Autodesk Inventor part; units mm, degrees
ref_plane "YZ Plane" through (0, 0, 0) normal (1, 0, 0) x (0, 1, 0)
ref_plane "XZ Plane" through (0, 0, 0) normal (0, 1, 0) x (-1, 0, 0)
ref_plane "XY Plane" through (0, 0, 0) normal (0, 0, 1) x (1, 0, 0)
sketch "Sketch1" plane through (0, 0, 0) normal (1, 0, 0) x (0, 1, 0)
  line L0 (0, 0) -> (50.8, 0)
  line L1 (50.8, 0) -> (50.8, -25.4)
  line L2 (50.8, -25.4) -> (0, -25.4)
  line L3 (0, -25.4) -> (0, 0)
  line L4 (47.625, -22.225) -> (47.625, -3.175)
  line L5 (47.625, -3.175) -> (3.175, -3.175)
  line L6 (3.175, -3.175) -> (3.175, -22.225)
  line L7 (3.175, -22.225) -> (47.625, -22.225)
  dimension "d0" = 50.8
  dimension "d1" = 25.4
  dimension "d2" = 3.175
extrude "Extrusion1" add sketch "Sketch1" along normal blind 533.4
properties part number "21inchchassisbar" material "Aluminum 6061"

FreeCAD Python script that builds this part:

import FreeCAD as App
import Part
import Sketcher
Q = App.Units.Quantity

doc = App.newDocument("Part")
params = doc.addObject("Spreadsheet::Sheet", "Params")
for row, (alias, value) in enumerate([
    ("sketch1_width", "2 in"),
    ("sketch1_height", "1 in"),
    ("pad1_length", "21 in"),
], start=1):
    params.set(f"A{row}", alias)
    params.set(f"B{row}", "=" + value)
    params.setAlias(f"B{row}", alias)

body = doc.addObject("PartDesign::Body", "Body")

sketch1 = body.newObject("Sketcher::SketchObject", "Sketch")
sketch1.AttachmentSupport = (doc.getObject("YZ_Plane"), [""])
sketch1.MapMode = "FlatFace"
sketch1.addGeometry([
    Part.LineSegment(App.Vector(51, 0, 0), App.Vector(0, 0, 0)),
    Part.LineSegment(App.Vector(0, 0, 0), App.Vector(0, -25, 0)),
    Part.LineSegment(App.Vector(0, -25, 0), App.Vector(51, -25, 0)),
    Part.LineSegment(App.Vector(51, -25, 0), App.Vector(51, 0, 0)),
    Part.LineSegment(App.Vector(48, -3, 0), App.Vector(48, -22, 0)),
    Part.LineSegment(App.Vector(48, -22, 0), App.Vector(3, -22, 0)),
    Part.LineSegment(App.Vector(3, -22, 0), App.Vector(3, -3, 0)),
    Part.LineSegment(App.Vector(3, -3, 0), App.Vector(48, -3, 0)),
], False)
sketch1.addConstraint([
    Sketcher.Constraint("Coincident", 0, 2, 1, 1),
    Sketcher.Constraint("Coincident", 1, 2, 2, 1),
    Sketcher.Constraint("Coincident", 2, 2, 3, 1),
    Sketcher.Constraint("Coincident", 3, 2, 0, 1),
    Sketcher.Constraint("Coincident", 4, 2, 5, 1),
    Sketcher.Constraint("Coincident", 5, 2, 6, 1),
    Sketcher.Constraint("Coincident", 6, 2, 7, 1),
    Sketcher.Constraint("Coincident", 7, 2, 4, 1),
    Sketcher.Constraint("Horizontal", 0),
    Sketcher.Constraint("Vertical", 1),
    Sketcher.Constraint("Horizontal", 2),
    Sketcher.Constraint("Vertical", 3),
    Sketcher.Constraint("Vertical", 4),
    Sketcher.Constraint("Horizontal", 5),
    Sketcher.Constraint("Vertical", 6),
    Sketcher.Constraint("Horizontal", 7),
    Sketcher.Constraint("Coincident", 0, 2, -1, 1),
    Sketcher.Constraint("DistanceX", 0, 2, 0, 1, Q("2 in")),
    Sketcher.Constraint("DistanceY", 1, 2, 1, 1, Q("1 in")),
    Sketcher.Constraint("DistanceX", -1, 1, 5, 2, Q("0.125 in")),
    Sketcher.Constraint("DistanceY", 6, 2, -1, 1, Q("0.125 in")),
    Sketcher.Constraint("DistanceX", 4, 2, 2, 2, Q("0.125 in")),
    Sketcher.Constraint("DistanceY", 2, 2, 4, 2, Q("0.125 in")),
])
sketch1.setExpression("Constraints[17]", "Params.sketch1_width")
sketch1.setExpression("Constraints[18]", "Params.sketch1_height")
pad1 = body.newObject("PartDesign::Pad", "Pad")
pad1.Profile = sketch1
pad1.setExpression("Length", "Params.pad1_length")

doc.recompute()
